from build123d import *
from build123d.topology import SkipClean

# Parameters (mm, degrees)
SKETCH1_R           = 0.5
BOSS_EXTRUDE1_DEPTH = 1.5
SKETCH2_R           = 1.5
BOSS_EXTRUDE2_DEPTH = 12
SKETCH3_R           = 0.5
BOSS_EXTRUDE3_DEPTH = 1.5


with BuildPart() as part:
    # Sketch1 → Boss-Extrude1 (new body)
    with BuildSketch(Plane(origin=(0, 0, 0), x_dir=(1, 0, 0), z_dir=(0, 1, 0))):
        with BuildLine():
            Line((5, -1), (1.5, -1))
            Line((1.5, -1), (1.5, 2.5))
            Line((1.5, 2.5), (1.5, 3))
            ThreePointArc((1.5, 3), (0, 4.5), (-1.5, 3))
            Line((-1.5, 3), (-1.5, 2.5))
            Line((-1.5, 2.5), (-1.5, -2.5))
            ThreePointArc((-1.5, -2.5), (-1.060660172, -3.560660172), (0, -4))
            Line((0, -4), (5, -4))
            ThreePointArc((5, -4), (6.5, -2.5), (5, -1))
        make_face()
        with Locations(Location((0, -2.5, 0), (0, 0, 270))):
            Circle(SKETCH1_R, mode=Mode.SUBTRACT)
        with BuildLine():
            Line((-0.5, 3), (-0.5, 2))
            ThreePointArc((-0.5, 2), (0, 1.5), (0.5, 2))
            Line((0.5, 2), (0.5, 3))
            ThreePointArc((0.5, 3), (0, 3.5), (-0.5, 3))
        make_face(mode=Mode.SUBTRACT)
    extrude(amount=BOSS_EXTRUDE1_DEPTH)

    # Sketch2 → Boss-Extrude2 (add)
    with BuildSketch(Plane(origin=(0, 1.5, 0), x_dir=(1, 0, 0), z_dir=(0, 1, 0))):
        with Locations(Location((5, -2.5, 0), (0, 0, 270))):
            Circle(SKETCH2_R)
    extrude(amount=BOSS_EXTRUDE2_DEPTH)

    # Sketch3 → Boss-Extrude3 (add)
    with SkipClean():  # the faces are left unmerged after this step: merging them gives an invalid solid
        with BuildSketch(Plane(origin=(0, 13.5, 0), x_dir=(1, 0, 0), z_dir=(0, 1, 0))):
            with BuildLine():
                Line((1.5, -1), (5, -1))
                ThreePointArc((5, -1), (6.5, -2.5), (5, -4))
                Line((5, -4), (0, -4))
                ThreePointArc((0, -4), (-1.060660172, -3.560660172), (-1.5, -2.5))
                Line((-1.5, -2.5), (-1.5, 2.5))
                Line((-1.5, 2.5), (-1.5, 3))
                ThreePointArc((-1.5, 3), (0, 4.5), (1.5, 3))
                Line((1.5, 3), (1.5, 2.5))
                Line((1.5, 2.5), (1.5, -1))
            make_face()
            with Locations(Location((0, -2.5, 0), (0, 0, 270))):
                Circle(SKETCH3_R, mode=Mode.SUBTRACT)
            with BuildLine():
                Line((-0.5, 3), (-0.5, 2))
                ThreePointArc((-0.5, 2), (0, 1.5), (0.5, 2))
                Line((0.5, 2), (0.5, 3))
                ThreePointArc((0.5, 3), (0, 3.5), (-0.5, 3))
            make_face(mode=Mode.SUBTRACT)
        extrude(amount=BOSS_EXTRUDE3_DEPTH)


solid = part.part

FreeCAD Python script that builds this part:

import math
import FreeCAD as App
import Part
import Sketcher
from FreeCAD import Vector

doc = App.newDocument("Part")
body = doc.addObject("PartDesign::Body", "Body")

sketch1 = body.newObject("Sketcher::SketchObject", "Sketch")
sketch1.AttachmentSupport = (doc.getObject("XZ_Plane"), [""])
sketch1.MapMode = "FlatFace"
sketch1.addGeometry([
    Part.LineSegment(Vector(5, 1, 0), Vector(1.5, 1, 0)),
    Part.LineSegment(Vector(1.5, 1, 0), Vector(1.5, -3, 0)),
    Part.ArcOfCircle(Part.Circle(Vector(0, -3, 0), Vector(0, 0, 1), 1.5), math.radians(180), math.radians(360)),
    Part.LineSegment(Vector(-1.5, -3, 0), Vector(-1.5, 2.5, 0)),
    Part.ArcOfCircle(Part.Circle(Vector(0, 2.5, 0), Vector(0, 0, 1), 1.5), math.radians(90), math.radians(180)),
    Part.LineSegment(Vector(0, 4, 0), Vector(5, 4, 0)),
    Part.ArcOfCircle(Part.Circle(Vector(5, 2.5, 0), Vector(0, 0, 1), 1.5), math.radians(-90), math.radians(90)),
    Part.Circle(Vector(0, 2.5, 0), Vector(0, 0, 1), 0.5),
    Part.LineSegment(Vector(-0.5, -2, 0), Vector(-0.5, -3, 0)),
    Part.ArcOfCircle(Part.Circle(Vector(0, -3, 0), Vector(0, 0, 1), 0.5), math.radians(180), math.radians(360)),
    Part.LineSegment(Vector(0.5, -3, 0), Vector(0.5, -2, 0)),
    Part.ArcOfCircle(Part.Circle(Vector(0, -2, 0), Vector(0, 0, 1), 0.5), math.radians(0), math.radians(180)),
], False)
sketch1.addConstraint([
    Sketcher.Constraint("Coincident", 0, 2, 1, 1),
    Sketcher.Constraint("Tangent", 1, 2, 2, 2),
    Sketcher.Constraint("Tangent", 2, 1, 3, 1),
    Sketcher.Constraint("Tangent", 3, 2, 4, 2),
    Sketcher.Constraint("Tangent", 4, 1, 5, 1),
    Sketcher.Constraint("Tangent", 5, 2, 6, 2),
    Sketcher.Constraint("Tangent", 6, 1, 0, 1),
    Sketcher.Constraint("Tangent", 8, 2, 9, 1),
    Sketcher.Constraint("Tangent", 9, 2, 10, 1),
    Sketcher.Constraint("Tangent", 10, 2, 11, 1),
    Sketcher.Constraint("Tangent", 11, 2, 8, 1),
    Sketcher.Constraint("Horizontal", 0),
    Sketcher.Constraint("Vertical", 1),
    Sketcher.Constraint("Vertical", 3),
    Sketcher.Constraint("Horizontal", 5),
    Sketcher.Constraint("Vertical", 8),
    Sketcher.Constraint("Vertical", 10),
    Sketcher.Constraint("Coincident", 7, 3, 4, 3),
    Sketcher.Constraint("Coincident", 9, 3, 2, 3),
    Sketcher.Constraint("Equal", 2, 4),
    Sketcher.Constraint("Equal", 4, 6),
    Sketcher.Constraint("Equal", 7, 9),
    Sketcher.Constraint("PointOnObject", 2, 3, -2),
    Sketcher.Constraint("Diameter", 7, 1.0),
    Sketcher.Constraint("Radius", 2, 1.5),
    Sketcher.Constraint("DistanceX", 5, 1, 5, 2, 5.0),
    Sketcher.Constraint("DistanceY", 1, 2, 1, 1, 4.0),
    Sketcher.Constraint("DistanceY", 8, 2, 8, 1, 1.0),
    Sketcher.Constraint("DistanceY", 2, 3, -1, 1, 3.0),
])
pad1 = body.newObject("PartDesign::Pad", "Pad")
pad1.Profile = sketch1
pad1.Length = 1.5
pad1.Reversed = True

sketch2 = body.newObject("Sketcher::SketchObject", "Sketch001")
sketch2.AttachmentSupport = (doc.getObject("XZ_Plane"), [""])
sketch2.MapMode = "FlatFace"
sketch2.AttachmentOffset = App.Placement(Vector(0, 0, -1.5), App.Rotation())
sketch2.addGeometry(Part.Circle(Vector(5, 2.5, 0), Vector(0, 0, 1), 1.5), False)
sketch2.addConstraint([
    Sketcher.Constraint("Diameter", 0, 3.0),
    Sketcher.Constraint("DistanceX", -1, 1, 0, 3, 5.0),
    Sketcher.Constraint("DistanceY", -1, 1, 0, 3, 2.5),
])
pad2 = body.newObject("PartDesign::Pad", "Pad001")
pad2.Profile = sketch2
pad2.Length = 12
pad2.Reversed = True

sketch3 = body.newObject("Sketcher::SketchObject", "Sketch002")
sketch3.AttachmentSupport = (doc.getObject("XZ_Plane"), [""])
sketch3.MapMode = "FlatFace"
sketch3.AttachmentOffset = App.Placement(Vector(0, 0, -13.5), App.Rotation())
sketch3.addGeometry([
    Part.LineSegment(Vector(5, 1, 0), Vector(1.5, 1, 0)),
    Part.LineSegment(Vector(1.5, 1, 0), Vector(1.5, -3, 0)),
    Part.ArcOfCircle(Part.Circle(Vector(0, -3, 0), Vector(0, 0, 1), 1.5), math.radians(180), math.radians(360)),
    Part.LineSegment(Vector(-1.5, -3, 0), Vector(-1.5, 2.5, 0)),
    Part.ArcOfCircle(Part.Circle(Vector(0, 2.5, 0), Vector(0, 0, 1), 1.5), math.radians(90), math.radians(180)),
    Part.LineSegment(Vector(0, 4, 0), Vector(5, 4, 0)),
    Part.ArcOfCircle(Part.Circle(Vector(5, 2.5, 0), Vector(0, 0, 1), 1.5), math.radians(-90), math.radians(90)),
    Part.Circle(Vector(0, 2.5, 0), Vector(0, 0, 1), 0.5),
    Part.ArcOfCircle(Part.Circle(Vector(0, -3, 0), Vector(0, 0, 1), 0.5), math.radians(180), math.radians(360)),
    Part.LineSegment(Vector(0.5, -3, 0), Vector(0.5, -2, 0)),
    Part.ArcOfCircle(Part.Circle(Vector(0, -2, 0), Vector(0, 0, 1), 0.5), math.radians(0), math.radians(180)),
    Part.LineSegment(Vector(-0.5, -2, 0), Vector(-0.5, -3, 0)),
], False)
sketch3.addConstraint([
    Sketcher.Constraint("Coincident", 0, 2, 1, 1),
    Sketcher.Constraint("Tangent", 1, 2, 2, 2),
    Sketcher.Constraint("Tangent", 2, 1, 3, 1),
    Sketcher.Constraint("Tangent", 3, 2, 4, 2),
    Sketcher.Constraint("Tangent", 4, 1, 5, 1),
    Sketcher.Constraint("Tangent", 5, 2, 6, 2),
    Sketcher.Constraint("Tangent", 6, 1, 0, 1),
    Sketcher.Constraint("Tangent", 8, 2, 9, 1),
    Sketcher.Constraint("Tangent", 9, 2, 10, 1),
    Sketcher.Constraint("Tangent", 10, 2, 11, 1),
    Sketcher.Constraint("Tangent", 11, 2, 8, 1),
    Sketcher.Constraint("Horizontal", 0),
    Sketcher.Constraint("Vertical", 1),
    Sketcher.Constraint("Vertical", 3),
    Sketcher.Constraint("Horizontal", 5),
    Sketcher.Constraint("Vertical", 9),
    Sketcher.Constraint("Vertical", 11),
    Sketcher.Constraint("Coincident", 7, 3, 4, 3),
    Sketcher.Constraint("Coincident", 8, 3, 2, 3),
    Sketcher.Constraint("Equal", 2, 4),
    Sketcher.Constraint("Equal", 4, 6),
    Sketcher.Constraint("Equal", 7, 8),
    Sketcher.Constraint("PointOnObject", 2, 3, -2),
    Sketcher.Constraint("Diameter", 7, 1.0),
    Sketcher.Constraint("Radius", 2, 1.5),
    Sketcher.Constraint("DistanceX", 5, 1, 5, 2, 5.0),
    Sketcher.Constraint("DistanceY", 1, 2, 1, 1, 4.0),
    Sketcher.Constraint("DistanceY", 9, 1, 9, 2, 1.0),
    Sketcher.Constraint("DistanceY", 2, 3, -1, 1, 3.0),
])
pad3 = body.newObject("PartDesign::Pad", "Pad002")
pad3.Profile = sketch3
pad3.Length = 1.5
pad3.Reversed = True

doc.recompute()
